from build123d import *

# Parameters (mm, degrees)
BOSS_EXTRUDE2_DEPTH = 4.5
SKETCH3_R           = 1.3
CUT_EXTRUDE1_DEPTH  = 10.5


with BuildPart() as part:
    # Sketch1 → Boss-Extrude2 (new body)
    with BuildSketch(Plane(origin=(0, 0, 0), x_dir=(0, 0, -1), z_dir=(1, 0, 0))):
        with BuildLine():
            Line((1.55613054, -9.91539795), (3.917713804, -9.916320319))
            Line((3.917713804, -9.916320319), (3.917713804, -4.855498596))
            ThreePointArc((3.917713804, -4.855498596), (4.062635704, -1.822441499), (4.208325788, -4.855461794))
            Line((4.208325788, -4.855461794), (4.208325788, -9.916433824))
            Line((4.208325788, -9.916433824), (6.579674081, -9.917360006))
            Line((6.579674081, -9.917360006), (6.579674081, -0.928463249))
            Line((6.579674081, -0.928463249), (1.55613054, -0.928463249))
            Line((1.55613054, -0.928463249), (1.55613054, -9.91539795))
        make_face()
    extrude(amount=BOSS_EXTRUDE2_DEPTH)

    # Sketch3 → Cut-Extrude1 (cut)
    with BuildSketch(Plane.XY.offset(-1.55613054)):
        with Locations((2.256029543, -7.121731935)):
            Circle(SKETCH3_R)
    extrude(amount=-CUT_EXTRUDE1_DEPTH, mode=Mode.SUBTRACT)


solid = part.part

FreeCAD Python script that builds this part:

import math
import FreeCAD as App
import Part
import Sketcher

V = App.Vector
Q = App.Units.Quantity

doc = App.newDocument("Part")
body = doc.addObject("PartDesign::Body", "Body")

# Sketch on YZ plane
sketch1 = body.newObject("Sketcher::SketchObject", "Sketch")
sketch1.AttachmentSupport = (doc.getObject("YZ_Plane"), [""])
sketch1.MapMode = "FlatFace"
sketch1.addGeometry(Part.LineSegment(V(-9.92, -1.56, 0), V(-9.92, -3.92, 0)), False)
sketch1.addGeometry(Part.LineSegment(V(-9.92, -3.92, 0), V(-4.86, -3.92, 0)), False)
sketch1.addGeometry(Part.ArcOfCircle(Part.Circle(V(-3.34, -4.06, 0), V(0, 0, 1), 1.52), math.radians(-175), math.radians(175)), False)
sketch1.addGeometry(Part.LineSegment(V(-4.86, -4.21, 0), V(-9.92, -4.21, 0)), False)
sketch1.addGeometry(Part.LineSegment(V(-9.92, -4.21, 0), V(-9.92, -6.58, 0)), False)
sketch1.addGeometry(Part.LineSegment(V(-9.92, -6.58, 0), V(-0.93, -6.58, 0)), False)
sketch1.addGeometry(Part.LineSegment(V(-0.93, -6.58, 0), V(-0.93, -1.56, 0)), False)
sketch1.addGeometry(Part.LineSegment(V(-0.93, -1.56, 0), V(-9.92, -1.56, 0)), False)
sketch1.addConstraint(Sketcher.Constraint("Coincident", 0, 2, 1, 1))
sketch1.addConstraint(Sketcher.Constraint("Coincident", 1, 2, 2, 2))
sketch1.addConstraint(Sketcher.Constraint("Coincident", 2, 1, 3, 1))
sketch1.addConstraint(Sketcher.Constraint("Coincident", 3, 2, 4, 1))
sketch1.addConstraint(Sketcher.Constraint("Coincident", 4, 2, 5, 1))
sketch1.addConstraint(Sketcher.Constraint("Coincident", 5, 2, 6, 1))
sketch1.addConstraint(Sketcher.Constraint("Coincident", 6, 2, 7, 1))
sketch1.addConstraint(Sketcher.Constraint("Coincident", 7, 2, 0, 1))
sketch1.addConstraint(Sketcher.Constraint("Horizontal", 1))
sketch1.addConstraint(Sketcher.Constraint("Horizontal", 3))
sketch1.addConstraint(Sketcher.Constraint("Horizontal", 5))
sketch1.addConstraint(Sketcher.Constraint("Vertical", 6))
sketch1.addConstraint(Sketcher.Constraint("Horizontal", 7))
sketch1.addConstraint(Sketcher.Constraint("Parallel", 0, 4))
sketch1.addConstraint(Sketcher.Constraint("Radius", 2, Q("1.52 mm")))
sketch1.addConstraint(Sketcher.Constraint("DistanceX", 2, 1, 5, 2, Q("3.926999 mm")))
sketch1.addConstraint(Sketcher.Constraint("DistanceX", 1, 1, 1, 2, Q("5.060822 mm")))
sketch1.addConstraint(Sketcher.Constraint("DistanceX", 1, 2, -1, 1, Q("4.855499 mm")))
sketch1.addConstraint(Sketcher.Constraint("DistanceX", 4, 2, 2, 1, Q("5.061898 mm")))
sketch1.addConstraint(Sketcher.Constraint("DistanceX", 7, 2, 1, 2, Q("5.059899 mm")))
sketch1.addConstraint(Sketcher.Constraint("Distance", 4, Q("2.371348 mm")))
sketch1.addConstraint(Sketcher.Constraint("DistanceX", 7, 2, 7, 1, Q("8.986935 mm")))
sketch1.addConstraint(Sketcher.Constraint("DistanceY", 6, 1, 6, 2, Q("5.023544 mm")))
sketch1.addConstraint(Sketcher.Constraint("DistanceX", 2, 3, -1, 1, Q("3.342441 mm")))
sketch1.addConstraint(Sketcher.Constraint("DistanceY", 2, 3, -1, 1, Q("4.062828 mm")))
pad1 = body.newObject("PartDesign::Pad", "Pad")
pad1.Profile = sketch1
pad1.Length = 4.5

# Sketch on XY plane
sketch2 = body.newObject("Sketcher::SketchObject", "Sketch001")
sketch2.AttachmentSupport = (doc.getObject("XY_Plane"), [""])
sketch2.MapMode = "FlatFace"
sketch2.AttachmentOffset = App.Placement(V(0, 0, -1.556131), App.Rotation())
sketch2.addGeometry(Part.Circle(V(2.3, -7.1, 0), V(0, 0, 1), 1.3), False)
sketch2.addConstraint(Sketcher.Constraint("Diameter", 0, Q("2.6 mm")))
sketch2.addConstraint(Sketcher.Constraint("DistanceX", -1, 1, 0, 3, Q("2.25603 mm")))
sketch2.addConstraint(Sketcher.Constraint("DistanceY", 0, 3, -1, 1, Q("7.121732 mm")))
pocket1 = body.newObject("PartDesign::Pocket", "Pocket")
pocket1.Profile = sketch2
pocket1.Length = 10.5

doc.recompute()
